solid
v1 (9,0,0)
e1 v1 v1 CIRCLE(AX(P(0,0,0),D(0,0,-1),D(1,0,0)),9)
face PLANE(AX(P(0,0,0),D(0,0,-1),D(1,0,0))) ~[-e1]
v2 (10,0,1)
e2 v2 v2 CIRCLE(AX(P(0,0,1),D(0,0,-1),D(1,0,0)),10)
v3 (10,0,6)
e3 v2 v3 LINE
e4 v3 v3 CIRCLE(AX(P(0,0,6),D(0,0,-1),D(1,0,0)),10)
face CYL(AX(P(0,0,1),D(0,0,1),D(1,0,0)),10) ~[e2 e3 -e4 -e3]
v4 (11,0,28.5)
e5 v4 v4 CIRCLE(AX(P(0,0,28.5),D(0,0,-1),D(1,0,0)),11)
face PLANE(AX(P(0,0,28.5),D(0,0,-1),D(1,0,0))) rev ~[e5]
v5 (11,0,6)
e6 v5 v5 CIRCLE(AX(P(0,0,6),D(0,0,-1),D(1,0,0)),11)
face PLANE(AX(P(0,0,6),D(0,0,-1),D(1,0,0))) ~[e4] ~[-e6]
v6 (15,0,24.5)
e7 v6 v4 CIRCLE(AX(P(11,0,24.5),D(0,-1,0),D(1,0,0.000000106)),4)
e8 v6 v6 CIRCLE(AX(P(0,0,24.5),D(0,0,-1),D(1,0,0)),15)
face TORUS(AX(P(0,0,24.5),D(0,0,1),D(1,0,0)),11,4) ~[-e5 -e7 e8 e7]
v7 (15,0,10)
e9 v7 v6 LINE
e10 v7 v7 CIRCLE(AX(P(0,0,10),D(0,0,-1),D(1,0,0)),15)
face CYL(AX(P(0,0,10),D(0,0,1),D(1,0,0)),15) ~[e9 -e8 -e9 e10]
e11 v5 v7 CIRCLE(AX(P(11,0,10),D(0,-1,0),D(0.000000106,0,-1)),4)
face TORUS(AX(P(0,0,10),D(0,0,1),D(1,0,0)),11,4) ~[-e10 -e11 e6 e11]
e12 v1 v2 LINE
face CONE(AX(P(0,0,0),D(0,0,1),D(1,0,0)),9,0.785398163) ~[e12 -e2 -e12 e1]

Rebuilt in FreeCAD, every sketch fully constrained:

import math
import FreeCAD as App
import Part
import Sketcher
Q = App.Units.Quantity

doc = App.newDocument("Part")
body = doc.addObject("PartDesign::Body", "Body")

# Sketch on XZ plane
sketch1 = body.newObject("Sketcher::SketchObject", "Sketch")
sketch1.AttachmentSupport = (doc.getObject("XZ_Plane"), [""])
sketch1.MapMode = "FlatFace"
sketch1.addGeometry([
    Part.LineSegment(App.Vector(9, 0, 0), App.Vector(10, 1, 0)),  # 0
    Part.LineSegment(App.Vector(10, 1, 0), App.Vector(10, 6, 0)),  # 1
    Part.LineSegment(App.Vector(10, 6, 0), App.Vector(11, 6, 0)),  # 2
    Part.ArcOfCircle(Part.Circle(App.Vector(11, 10, 0), App.Vector(0, 0, 1), 4), math.radians(-90), math.radians(0)),  # 3
    Part.LineSegment(App.Vector(15, 10, 0), App.Vector(15, 24.5, 0)),  # 4
    Part.ArcOfCircle(Part.Circle(App.Vector(11, 24.5, 0), App.Vector(0, 0, 1), 4), math.radians(0), math.radians(90)),  # 5
    Part.LineSegment(App.Vector(11, 28.5, 0), App.Vector(0, 28.5, 0)),  # 6
    Part.LineSegment(App.Vector(0, 28.5, 0), App.Vector(0, 0, 0)),  # 7
    Part.LineSegment(App.Vector(0, 0, 0), App.Vector(9, 0, 0)),  # 8
], False)
sketch1.addConstraint([
    Sketcher.Constraint("Coincident", 0, 2, 1, 1),
    Sketcher.Constraint("Coincident", 1, 2, 2, 1),
    Sketcher.Constraint("Tangent", 2, 2, 3, 1),
    Sketcher.Constraint("Tangent", 3, 2, 4, 1),
    Sketcher.Constraint("Tangent", 4, 2, 5, 1),
    Sketcher.Constraint("Tangent", 5, 2, 6, 1),
    Sketcher.Constraint("Coincident", 6, 2, 7, 1),
    Sketcher.Constraint("Coincident", 7, 2, 8, 1),
    Sketcher.Constraint("Coincident", 8, 2, 0, 1),
    Sketcher.Constraint("Vertical", 1),
    Sketcher.Constraint("Horizontal", 2),
    Sketcher.Constraint("Vertical", 4),
    Sketcher.Constraint("Horizontal", 6),
    Sketcher.Constraint("Vertical", 7),
    Sketcher.Constraint("Horizontal", 8),
    Sketcher.Constraint("Coincident", 7, 2, -1, 1),
    Sketcher.Constraint("Equal", 3, 5),
    Sketcher.Constraint("Radius", 3, Q("4 mm")),
    Sketcher.Constraint("DistanceX", 2, 1, 2, 2, Q("1 mm")),
    Sketcher.Constraint("DistanceX", 6, 2, 6, 1, Q("11 mm")),
    Sketcher.Constraint("DistanceX", 8, 1, 8, 2, Q("9 mm")),
    Sketcher.Constraint("DistanceY", 1, 1, 1, 2, Q("5 mm")),
    Sketcher.Constraint("Angle", 0, Q("45 deg")),
    Sketcher.Constraint("DistanceY", 4, 1, 4, 2, Q("14.5 mm")),
])
revolution = body.newObject("PartDesign::Revolution", "Revolution")
revolution.Profile = sketch1
revolution.ReferenceAxis = (sketch1, ["V_Axis"])
revolution.Angle = 360

doc.recompute()
